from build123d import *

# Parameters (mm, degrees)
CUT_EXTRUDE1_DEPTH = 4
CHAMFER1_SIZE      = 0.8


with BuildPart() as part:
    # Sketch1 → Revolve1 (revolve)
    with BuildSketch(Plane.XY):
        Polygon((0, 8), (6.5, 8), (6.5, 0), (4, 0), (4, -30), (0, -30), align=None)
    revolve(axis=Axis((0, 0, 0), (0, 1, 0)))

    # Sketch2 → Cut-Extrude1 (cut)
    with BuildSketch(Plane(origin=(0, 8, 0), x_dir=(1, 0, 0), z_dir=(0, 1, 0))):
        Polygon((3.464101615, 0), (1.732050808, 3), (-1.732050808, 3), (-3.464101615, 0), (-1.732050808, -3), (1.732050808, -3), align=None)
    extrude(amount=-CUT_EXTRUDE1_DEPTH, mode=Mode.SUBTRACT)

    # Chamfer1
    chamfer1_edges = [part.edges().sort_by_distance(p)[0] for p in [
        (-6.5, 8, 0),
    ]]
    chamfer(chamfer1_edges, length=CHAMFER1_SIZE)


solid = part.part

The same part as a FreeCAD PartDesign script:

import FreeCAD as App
import Part
import Sketcher

V = App.Vector
Q = App.Units.Quantity


def edges_at(feature, points):
    """Names of the edges that pass closest to the given points."""
    edges = feature.Shape.Edges
    near = lambda p: min(range(len(edges)), key=lambda i: edges[i].distToShape(Part.Vertex(*p))[0])
    return sorted({f"Edge{near(p) + 1}" for p in points})


def add_polygon(sketch, points):
    """Adds a closed chain of lines whose ends are joined by coincident constraints."""
    first, n = sketch.GeometryCount, len(points)
    for a, b in zip(points, points[1:] + points[:1]):
        sketch.addGeometry(Part.LineSegment(App.Vector(*a, 0), App.Vector(*b, 0)), False)
    for i in range(n):
        sketch.addConstraint(Sketcher.Constraint("Coincident", first + i, 2, first + (i + 1) % n, 1))

doc = App.newDocument("Part")
body = doc.addObject("PartDesign::Body", "Body")

# Sketch on XY plane
sketch1 = body.newObject("Sketcher::SketchObject", "Sketch")
sketch1.AttachmentSupport = (doc.getObject("XY_Plane"), [""])
sketch1.MapMode = "FlatFace"
add_polygon(sketch1, [(6.5, 8), (0, 8), (0, -30), (4, -30), (4, 0), (6.5, 0)])  # lines 0-5
sketch1.addConstraint(Sketcher.Constraint("Horizontal", 0))
sketch1.addConstraint(Sketcher.Constraint("Vertical", 1))
sketch1.addConstraint(Sketcher.Constraint("Horizontal", 2))
sketch1.addConstraint(Sketcher.Constraint("Vertical", 3))
sketch1.addConstraint(Sketcher.Constraint("Horizontal", 4))
sketch1.addConstraint(Sketcher.Constraint("Vertical", 5))
sketch1.addConstraint(Sketcher.Constraint("PointOnObject", 0, 2, -2))
sketch1.addConstraint(Sketcher.Constraint("PointOnObject", 3, 2, -1))
sketch1.addConstraint(Sketcher.Constraint("DistanceX", 2, 1, 2, 2, Q("4 mm")))
sketch1.addConstraint(Sketcher.Constraint("DistanceY", 1, 2, 1, 1, Q("38 mm")))
sketch1.addConstraint(Sketcher.Constraint("DistanceY", 3, 1, 3, 2, Q("30 mm")))
sketch1.addConstraint(Sketcher.Constraint("DistanceX", 0, 2, 0, 1, Q("6.5 mm")))
revolution = body.newObject("PartDesign::Revolution", "Revolution")
revolution.Profile = sketch1
revolution.ReferenceAxis = (sketch1, ["V_Axis"])
revolution.Angle = 360

# Sketch on XZ plane
sketch2 = body.newObject("Sketcher::SketchObject", "Sketch001")
sketch2.AttachmentSupport = (doc.getObject("XZ_Plane"), [""])
sketch2.MapMode = "FlatFace"
sketch2.AttachmentOffset = App.Placement(V(0, 0, -8), App.Rotation())
add_polygon(sketch2, [(3.5, 0), (1.7, -3), (-1.7, -3), (-3.5, 0), (-1.7, 3), (1.7, 3)])  # lines 0-5
sketch2.addConstraint(Sketcher.Constraint("Horizontal", 1))
sketch2.addConstraint(Sketcher.Constraint("Horizontal", 4))
sketch2.addConstraint(Sketcher.Constraint("Symmetric", 0, 2, 3, 2, -1, 1))
sketch2.addConstraint(Sketcher.Constraint("Symmetric", 2, 2, 5, 2, -1, 1))
sketch2.addConstraint(Sketcher.Constraint("PointOnObject", 2, 2, -1))
sketch2.addConstraint(Sketcher.Constraint("Parallel", 2, 5))
sketch2.addConstraint(Sketcher.Constraint("Vertical", 1, 2, 3, 2))
sketch2.addConstraint(Sketcher.Constraint("Angle", 0, Q("-120 deg")))
sketch2.addConstraint(Sketcher.Constraint("DistanceY", 0, 2, -1, 1, Q("3 mm")))
sketch2.addConstraint(Sketcher.Constraint("DistanceX", 1, 2, 1, 1, Q("3.464102 mm")))
pocket1 = body.newObject("PartDesign::Pocket", "Pocket")
pocket1.Profile = sketch2
pocket1.Length = 4
pocket1.Reversed = True
doc.recompute()

chamfer = body.newObject("PartDesign::Chamfer", "Chamfer")
chamfer.Base = (pocket1, edges_at(pocket1, [(-6.5, 8, 0)]))
chamfer.Size = 0.8

doc.recompute()
